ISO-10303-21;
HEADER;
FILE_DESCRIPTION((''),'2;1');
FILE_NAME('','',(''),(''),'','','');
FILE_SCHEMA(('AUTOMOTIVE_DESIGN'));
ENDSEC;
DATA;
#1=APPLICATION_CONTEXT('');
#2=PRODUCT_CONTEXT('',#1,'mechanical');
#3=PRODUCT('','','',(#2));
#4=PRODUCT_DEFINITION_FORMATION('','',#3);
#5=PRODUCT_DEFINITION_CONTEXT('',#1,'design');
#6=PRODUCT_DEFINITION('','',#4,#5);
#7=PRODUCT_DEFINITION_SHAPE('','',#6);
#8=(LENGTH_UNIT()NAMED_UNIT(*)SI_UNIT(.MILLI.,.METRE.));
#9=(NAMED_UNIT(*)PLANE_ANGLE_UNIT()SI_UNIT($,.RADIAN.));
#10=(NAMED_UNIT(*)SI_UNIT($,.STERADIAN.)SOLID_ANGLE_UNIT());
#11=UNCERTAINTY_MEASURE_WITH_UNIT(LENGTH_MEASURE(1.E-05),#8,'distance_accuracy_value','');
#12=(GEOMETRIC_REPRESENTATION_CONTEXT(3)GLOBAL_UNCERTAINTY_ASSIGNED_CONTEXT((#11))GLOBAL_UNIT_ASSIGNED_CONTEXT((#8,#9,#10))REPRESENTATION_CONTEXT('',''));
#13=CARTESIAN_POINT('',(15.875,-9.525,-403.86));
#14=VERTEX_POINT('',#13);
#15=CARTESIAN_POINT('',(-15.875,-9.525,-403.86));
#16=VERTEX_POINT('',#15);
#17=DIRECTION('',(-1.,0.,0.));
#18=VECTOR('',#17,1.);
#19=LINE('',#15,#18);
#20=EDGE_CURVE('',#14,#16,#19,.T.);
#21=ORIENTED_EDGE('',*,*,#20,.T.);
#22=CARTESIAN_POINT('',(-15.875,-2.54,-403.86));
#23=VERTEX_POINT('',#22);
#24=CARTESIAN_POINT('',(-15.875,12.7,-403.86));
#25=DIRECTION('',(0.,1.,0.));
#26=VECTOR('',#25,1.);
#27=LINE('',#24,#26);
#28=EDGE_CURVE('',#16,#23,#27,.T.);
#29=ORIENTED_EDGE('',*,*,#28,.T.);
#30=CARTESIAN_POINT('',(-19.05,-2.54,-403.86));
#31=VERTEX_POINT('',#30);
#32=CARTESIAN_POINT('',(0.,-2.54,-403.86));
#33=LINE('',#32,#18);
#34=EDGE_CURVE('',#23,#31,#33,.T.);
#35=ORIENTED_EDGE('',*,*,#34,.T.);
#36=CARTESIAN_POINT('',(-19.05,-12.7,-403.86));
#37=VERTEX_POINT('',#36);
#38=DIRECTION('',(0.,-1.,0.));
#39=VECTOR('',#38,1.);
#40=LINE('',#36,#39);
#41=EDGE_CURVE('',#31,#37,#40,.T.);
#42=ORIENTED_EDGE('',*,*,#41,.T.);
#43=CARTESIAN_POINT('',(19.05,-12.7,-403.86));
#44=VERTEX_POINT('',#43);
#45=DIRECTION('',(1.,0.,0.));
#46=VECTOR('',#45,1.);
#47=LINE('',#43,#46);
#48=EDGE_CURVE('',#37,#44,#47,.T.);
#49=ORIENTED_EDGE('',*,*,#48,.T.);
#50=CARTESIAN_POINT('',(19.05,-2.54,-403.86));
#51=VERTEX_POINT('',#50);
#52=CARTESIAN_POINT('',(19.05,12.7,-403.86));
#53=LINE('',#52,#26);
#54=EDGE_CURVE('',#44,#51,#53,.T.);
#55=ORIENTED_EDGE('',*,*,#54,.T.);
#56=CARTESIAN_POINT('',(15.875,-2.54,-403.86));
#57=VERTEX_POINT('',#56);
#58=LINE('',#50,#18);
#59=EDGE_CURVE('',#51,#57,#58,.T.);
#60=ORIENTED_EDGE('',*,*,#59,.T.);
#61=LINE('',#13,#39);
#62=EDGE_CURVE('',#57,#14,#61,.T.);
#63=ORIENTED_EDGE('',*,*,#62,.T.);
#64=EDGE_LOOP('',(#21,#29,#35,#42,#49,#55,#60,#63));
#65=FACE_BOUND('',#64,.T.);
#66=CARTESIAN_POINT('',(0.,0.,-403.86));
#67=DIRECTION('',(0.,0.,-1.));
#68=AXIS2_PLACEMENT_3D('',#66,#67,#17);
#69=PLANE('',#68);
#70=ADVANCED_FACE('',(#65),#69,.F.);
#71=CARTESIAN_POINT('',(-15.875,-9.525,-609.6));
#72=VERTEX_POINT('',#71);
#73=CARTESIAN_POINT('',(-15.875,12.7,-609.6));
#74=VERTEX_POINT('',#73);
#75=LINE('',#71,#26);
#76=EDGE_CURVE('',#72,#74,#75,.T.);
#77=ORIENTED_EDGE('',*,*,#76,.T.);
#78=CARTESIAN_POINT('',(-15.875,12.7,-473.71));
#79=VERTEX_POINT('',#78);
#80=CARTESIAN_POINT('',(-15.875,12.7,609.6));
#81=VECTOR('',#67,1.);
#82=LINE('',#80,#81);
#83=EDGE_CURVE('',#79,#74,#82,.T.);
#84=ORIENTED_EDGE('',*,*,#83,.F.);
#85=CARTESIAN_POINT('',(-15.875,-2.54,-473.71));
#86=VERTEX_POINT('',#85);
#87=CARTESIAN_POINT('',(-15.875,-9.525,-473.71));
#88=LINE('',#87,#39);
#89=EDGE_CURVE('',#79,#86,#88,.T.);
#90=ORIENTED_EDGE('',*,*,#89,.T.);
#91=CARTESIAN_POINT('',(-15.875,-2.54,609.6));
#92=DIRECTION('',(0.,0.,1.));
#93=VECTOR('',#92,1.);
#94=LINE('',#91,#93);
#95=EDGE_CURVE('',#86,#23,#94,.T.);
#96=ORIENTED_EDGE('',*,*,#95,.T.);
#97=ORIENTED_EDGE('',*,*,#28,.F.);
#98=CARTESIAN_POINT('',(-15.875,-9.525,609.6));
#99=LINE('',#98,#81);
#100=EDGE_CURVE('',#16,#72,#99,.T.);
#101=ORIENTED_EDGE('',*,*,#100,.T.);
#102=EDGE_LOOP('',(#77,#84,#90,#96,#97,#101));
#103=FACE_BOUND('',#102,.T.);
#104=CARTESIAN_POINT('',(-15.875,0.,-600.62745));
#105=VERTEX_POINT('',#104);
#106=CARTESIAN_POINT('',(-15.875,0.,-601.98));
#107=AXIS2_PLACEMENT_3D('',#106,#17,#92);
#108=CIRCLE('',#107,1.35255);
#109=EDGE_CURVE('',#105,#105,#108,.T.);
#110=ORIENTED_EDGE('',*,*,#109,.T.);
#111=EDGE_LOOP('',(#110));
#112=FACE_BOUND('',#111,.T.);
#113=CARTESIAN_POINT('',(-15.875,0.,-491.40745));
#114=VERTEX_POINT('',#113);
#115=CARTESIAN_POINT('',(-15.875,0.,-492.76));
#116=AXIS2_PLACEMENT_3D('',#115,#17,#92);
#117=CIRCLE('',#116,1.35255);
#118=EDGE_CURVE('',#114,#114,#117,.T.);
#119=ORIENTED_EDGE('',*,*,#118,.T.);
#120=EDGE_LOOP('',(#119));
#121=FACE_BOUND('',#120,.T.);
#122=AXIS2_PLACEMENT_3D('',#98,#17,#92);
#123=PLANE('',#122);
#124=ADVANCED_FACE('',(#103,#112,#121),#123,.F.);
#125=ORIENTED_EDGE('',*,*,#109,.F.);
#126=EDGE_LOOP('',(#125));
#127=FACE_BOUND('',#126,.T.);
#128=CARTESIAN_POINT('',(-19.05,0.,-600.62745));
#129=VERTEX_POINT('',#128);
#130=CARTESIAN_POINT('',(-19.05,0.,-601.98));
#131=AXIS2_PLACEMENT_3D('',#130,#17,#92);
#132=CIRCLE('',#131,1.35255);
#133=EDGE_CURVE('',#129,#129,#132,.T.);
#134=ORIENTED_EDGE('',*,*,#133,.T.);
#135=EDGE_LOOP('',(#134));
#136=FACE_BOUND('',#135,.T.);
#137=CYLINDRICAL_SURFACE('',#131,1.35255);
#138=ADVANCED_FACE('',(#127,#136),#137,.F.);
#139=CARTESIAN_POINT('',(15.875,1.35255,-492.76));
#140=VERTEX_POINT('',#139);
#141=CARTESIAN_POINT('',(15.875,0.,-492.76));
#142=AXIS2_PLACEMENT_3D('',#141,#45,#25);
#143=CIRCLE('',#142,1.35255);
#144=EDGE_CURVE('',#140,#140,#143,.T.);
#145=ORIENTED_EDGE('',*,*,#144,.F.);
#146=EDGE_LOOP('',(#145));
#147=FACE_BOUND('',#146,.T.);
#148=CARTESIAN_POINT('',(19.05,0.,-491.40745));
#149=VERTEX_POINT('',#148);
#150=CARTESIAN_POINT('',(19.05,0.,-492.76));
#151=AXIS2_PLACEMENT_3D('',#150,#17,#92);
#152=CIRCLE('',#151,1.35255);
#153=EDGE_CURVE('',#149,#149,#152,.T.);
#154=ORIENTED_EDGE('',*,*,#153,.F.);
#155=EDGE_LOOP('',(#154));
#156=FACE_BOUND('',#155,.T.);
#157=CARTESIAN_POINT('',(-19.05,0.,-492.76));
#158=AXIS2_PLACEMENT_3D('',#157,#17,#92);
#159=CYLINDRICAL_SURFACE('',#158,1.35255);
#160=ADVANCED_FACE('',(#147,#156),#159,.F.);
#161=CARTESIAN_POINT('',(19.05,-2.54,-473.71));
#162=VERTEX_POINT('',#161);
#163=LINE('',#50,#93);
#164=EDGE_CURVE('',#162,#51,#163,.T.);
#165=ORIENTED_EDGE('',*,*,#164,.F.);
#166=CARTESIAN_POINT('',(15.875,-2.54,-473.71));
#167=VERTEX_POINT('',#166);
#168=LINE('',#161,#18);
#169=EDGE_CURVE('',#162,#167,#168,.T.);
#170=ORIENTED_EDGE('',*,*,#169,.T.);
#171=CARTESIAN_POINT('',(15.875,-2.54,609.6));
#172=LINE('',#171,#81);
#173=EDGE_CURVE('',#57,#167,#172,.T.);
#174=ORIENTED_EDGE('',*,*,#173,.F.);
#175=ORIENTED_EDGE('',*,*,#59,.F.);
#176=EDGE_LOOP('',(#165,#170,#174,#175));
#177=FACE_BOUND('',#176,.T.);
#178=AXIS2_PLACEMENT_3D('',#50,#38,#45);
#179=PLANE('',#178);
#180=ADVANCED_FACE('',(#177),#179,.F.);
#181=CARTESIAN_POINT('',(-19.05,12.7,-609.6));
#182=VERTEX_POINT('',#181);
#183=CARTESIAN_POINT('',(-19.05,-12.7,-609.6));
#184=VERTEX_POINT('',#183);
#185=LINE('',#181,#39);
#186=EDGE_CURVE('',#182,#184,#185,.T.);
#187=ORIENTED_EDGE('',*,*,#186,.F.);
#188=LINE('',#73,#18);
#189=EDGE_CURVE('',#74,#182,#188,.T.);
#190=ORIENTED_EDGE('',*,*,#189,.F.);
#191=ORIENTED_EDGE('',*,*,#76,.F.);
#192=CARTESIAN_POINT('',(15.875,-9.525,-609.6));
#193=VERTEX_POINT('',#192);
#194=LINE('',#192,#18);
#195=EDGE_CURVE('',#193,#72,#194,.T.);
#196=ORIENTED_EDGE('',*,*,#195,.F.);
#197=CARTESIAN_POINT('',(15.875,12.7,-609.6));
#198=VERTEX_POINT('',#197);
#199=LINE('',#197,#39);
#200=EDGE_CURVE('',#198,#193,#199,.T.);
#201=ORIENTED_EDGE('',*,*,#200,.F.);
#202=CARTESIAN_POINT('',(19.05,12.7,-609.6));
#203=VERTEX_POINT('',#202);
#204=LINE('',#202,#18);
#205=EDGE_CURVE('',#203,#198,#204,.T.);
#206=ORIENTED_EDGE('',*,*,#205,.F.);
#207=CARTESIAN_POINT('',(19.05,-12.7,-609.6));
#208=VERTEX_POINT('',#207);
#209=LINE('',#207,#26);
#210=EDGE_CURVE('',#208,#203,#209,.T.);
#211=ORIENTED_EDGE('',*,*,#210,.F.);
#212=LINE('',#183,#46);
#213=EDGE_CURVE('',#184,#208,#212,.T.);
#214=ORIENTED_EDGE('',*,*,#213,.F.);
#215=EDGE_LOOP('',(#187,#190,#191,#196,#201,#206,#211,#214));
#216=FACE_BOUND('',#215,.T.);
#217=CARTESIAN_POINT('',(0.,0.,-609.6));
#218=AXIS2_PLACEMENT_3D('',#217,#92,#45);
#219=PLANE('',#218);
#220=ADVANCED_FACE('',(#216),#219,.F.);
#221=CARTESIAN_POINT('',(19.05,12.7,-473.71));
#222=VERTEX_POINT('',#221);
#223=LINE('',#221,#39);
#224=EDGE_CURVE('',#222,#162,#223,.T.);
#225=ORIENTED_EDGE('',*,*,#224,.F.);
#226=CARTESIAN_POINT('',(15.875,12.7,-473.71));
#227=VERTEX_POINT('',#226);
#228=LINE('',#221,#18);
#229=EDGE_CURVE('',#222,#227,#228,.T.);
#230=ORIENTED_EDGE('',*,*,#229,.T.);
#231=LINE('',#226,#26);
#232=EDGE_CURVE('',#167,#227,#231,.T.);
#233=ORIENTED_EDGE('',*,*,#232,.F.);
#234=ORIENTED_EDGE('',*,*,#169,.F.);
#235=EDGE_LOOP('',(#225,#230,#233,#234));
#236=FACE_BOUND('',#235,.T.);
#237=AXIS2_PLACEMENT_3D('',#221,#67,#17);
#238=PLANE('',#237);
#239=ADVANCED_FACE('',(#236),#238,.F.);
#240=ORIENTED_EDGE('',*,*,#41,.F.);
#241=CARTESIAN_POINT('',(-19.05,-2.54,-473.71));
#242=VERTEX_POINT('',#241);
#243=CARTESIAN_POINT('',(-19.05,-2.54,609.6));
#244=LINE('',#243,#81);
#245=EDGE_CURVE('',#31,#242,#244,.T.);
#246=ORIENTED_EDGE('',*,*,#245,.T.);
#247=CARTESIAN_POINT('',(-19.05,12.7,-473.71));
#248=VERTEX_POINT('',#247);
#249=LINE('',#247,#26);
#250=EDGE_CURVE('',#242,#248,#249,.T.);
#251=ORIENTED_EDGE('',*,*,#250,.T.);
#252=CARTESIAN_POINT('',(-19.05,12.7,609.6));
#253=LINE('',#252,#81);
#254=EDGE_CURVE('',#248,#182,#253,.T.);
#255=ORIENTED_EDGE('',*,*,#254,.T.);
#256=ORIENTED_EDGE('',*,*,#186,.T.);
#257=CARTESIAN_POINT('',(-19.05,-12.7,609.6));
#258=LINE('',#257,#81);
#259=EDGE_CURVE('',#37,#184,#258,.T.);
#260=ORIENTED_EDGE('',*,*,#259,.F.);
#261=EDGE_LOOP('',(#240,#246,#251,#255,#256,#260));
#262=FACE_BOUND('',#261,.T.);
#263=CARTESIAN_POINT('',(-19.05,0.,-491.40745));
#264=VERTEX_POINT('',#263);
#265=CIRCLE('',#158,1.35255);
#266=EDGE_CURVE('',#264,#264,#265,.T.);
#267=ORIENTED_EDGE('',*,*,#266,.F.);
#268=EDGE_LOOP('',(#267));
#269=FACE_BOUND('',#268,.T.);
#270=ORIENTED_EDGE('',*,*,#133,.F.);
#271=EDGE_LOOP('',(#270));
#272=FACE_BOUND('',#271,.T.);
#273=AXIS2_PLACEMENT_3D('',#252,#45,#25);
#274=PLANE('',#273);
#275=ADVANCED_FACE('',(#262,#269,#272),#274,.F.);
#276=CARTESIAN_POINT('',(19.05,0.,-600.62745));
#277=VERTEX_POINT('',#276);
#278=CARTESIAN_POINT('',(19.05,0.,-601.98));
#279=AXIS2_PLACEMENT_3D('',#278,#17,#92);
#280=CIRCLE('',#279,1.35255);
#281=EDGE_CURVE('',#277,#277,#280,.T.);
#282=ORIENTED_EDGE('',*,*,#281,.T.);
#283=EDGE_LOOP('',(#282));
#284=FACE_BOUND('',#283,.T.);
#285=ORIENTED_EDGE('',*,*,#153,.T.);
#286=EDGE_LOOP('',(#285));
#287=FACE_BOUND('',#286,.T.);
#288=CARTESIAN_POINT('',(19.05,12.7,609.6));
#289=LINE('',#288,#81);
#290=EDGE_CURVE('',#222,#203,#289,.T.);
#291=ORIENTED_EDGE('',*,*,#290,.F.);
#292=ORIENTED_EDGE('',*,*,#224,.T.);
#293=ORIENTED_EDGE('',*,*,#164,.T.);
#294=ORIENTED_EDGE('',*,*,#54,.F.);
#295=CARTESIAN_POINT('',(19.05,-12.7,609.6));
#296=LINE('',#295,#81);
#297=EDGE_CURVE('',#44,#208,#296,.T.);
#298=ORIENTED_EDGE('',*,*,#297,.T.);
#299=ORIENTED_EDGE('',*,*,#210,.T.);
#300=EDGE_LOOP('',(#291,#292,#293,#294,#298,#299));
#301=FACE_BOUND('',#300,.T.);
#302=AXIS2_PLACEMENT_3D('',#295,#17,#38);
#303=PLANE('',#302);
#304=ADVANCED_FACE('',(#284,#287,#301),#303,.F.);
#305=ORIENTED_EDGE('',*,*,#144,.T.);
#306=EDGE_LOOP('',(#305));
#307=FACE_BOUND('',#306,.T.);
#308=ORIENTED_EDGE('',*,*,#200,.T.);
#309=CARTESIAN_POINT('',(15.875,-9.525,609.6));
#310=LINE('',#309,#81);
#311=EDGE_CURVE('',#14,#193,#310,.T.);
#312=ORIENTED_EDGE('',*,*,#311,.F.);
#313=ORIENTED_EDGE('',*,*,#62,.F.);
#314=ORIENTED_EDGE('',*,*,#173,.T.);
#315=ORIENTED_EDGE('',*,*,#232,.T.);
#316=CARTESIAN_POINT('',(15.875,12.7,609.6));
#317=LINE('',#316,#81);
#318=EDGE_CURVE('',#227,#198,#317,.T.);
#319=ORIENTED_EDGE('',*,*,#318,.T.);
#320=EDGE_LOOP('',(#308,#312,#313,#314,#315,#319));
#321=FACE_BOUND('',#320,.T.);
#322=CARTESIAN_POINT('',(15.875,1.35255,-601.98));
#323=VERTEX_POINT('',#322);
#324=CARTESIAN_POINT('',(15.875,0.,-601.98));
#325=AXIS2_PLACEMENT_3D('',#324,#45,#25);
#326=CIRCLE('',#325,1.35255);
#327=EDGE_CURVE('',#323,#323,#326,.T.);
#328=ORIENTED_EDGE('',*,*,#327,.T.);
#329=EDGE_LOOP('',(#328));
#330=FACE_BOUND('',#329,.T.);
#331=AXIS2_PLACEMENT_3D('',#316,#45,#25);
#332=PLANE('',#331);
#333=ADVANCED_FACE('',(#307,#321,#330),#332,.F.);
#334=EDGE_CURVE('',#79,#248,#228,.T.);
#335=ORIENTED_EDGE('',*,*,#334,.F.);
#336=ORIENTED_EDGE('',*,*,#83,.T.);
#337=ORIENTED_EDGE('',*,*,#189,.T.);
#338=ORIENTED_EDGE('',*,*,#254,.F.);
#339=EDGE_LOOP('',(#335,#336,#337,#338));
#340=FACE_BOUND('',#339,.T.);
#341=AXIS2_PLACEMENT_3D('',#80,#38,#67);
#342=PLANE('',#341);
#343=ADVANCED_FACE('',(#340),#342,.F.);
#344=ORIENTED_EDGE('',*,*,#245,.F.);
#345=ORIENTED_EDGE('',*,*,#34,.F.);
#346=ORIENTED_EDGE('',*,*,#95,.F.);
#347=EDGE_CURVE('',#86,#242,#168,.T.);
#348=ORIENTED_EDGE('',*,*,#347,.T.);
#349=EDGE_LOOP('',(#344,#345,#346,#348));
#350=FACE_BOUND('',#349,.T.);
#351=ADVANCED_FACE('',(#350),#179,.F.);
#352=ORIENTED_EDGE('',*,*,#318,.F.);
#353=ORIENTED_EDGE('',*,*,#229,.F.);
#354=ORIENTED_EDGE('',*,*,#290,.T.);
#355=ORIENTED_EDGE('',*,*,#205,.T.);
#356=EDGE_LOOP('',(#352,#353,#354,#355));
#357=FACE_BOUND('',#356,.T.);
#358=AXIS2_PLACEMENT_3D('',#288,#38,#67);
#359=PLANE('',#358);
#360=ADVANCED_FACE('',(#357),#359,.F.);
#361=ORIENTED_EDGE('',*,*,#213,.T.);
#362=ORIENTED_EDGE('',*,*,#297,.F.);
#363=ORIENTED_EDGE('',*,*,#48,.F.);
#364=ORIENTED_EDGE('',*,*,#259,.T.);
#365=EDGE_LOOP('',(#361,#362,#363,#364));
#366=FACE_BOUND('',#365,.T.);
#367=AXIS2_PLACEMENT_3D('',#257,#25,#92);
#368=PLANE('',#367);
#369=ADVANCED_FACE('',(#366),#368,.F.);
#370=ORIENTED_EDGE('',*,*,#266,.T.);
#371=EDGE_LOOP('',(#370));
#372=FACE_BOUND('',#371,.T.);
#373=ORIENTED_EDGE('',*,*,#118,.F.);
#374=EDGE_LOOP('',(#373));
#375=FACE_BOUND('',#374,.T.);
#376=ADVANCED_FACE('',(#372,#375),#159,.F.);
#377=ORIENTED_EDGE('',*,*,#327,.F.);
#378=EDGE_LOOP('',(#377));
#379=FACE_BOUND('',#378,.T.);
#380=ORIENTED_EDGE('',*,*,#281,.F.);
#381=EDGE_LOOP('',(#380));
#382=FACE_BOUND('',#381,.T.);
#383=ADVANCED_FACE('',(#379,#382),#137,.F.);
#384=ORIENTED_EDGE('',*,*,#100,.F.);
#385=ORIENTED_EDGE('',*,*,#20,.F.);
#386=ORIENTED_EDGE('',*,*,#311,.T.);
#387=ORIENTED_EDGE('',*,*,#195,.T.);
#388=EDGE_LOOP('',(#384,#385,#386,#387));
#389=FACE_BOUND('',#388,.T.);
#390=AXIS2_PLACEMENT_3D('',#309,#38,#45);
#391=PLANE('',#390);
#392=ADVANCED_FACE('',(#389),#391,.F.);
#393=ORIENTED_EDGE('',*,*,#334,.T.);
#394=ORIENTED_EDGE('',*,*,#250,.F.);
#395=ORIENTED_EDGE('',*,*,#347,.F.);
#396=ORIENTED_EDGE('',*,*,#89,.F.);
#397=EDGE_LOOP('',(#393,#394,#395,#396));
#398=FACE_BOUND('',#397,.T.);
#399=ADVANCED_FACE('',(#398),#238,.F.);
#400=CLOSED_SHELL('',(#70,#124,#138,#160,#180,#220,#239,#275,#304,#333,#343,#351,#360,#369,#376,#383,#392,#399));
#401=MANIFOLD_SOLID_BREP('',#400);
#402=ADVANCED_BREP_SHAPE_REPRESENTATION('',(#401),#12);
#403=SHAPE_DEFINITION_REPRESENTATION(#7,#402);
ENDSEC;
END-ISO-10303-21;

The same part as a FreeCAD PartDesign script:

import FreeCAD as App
import Part
import Sketcher
from FreeCAD import Vector
Q = App.Units.Quantity

doc = App.newDocument("Part")
body = doc.addObject("PartDesign::Body", "Body")

# Sketch on XY plane
sketch1 = body.newObject("Sketcher::SketchObject", "Sketch")
sketch1.AttachmentSupport = (doc.getObject("XY_Plane"), [""])
sketch1.MapMode = "FlatFace"
sketch1.addGeometry([
    Part.LineSegment(Vector(-19.1, 12.7, 0), Vector(-19.1, -12.7, 0)),  # 0
    Part.LineSegment(Vector(-19.1, -12.7, 0), Vector(19.1, -12.7, 0)),  # 1
    Part.LineSegment(Vector(19.1, -12.7, 0), Vector(19.1, 12.7, 0)),  # 2
    Part.LineSegment(Vector(19.1, 12.7, 0), Vector(15.9, 12.7, 0)),  # 3
    Part.LineSegment(Vector(15.9, 12.7, 0), Vector(15.9, -9.5, 0)),  # 4
    Part.LineSegment(Vector(15.9, -9.5, 0), Vector(-15.9, -9.5, 0)),  # 5
    Part.LineSegment(Vector(-15.9, -9.5, 0), Vector(-15.9, 12.7, 0)),  # 6
    Part.LineSegment(Vector(-15.9, 12.7, 0), Vector(-19.1, 12.7, 0)),  # 7
], False)
sketch1.addConstraint([
    Sketcher.Constraint("Coincident", 0, 2, 1, 1),
    Sketcher.Constraint("Coincident", 1, 2, 2, 1),
    Sketcher.Constraint("Coincident", 2, 2, 3, 1),
    Sketcher.Constraint("Coincident", 3, 2, 4, 1),
    Sketcher.Constraint("Coincident", 4, 2, 5, 1),
    Sketcher.Constraint("Coincident", 5, 2, 6, 1),
    Sketcher.Constraint("Coincident", 6, 2, 7, 1),
    Sketcher.Constraint("Coincident", 7, 2, 0, 1),
    Sketcher.Constraint("Vertical", 0),
    Sketcher.Constraint("Horizontal", 1),
    Sketcher.Constraint("Vertical", 2),
    Sketcher.Constraint("Horizontal", 3),
    Sketcher.Constraint("Vertical", 4),
    Sketcher.Constraint("Horizontal", 5),
    Sketcher.Constraint("Vertical", 6),
    Sketcher.Constraint("Horizontal", 7),
    Sketcher.Constraint("Symmetric", 0, 2, 2, 2, -1, 1),
    Sketcher.Constraint("Symmetric", 3, 2, 6, 2, -2),
    Sketcher.Constraint("DistanceY", 0, 2, 0, 1, Q("1 in")),
    Sketcher.Constraint("DistanceX", 1, 1, 1, 2, Q("1.5 in")),
    Sketcher.Constraint("DistanceX", 5, 2, 5, 1, Q("1.25 in")),
    Sketcher.Constraint("DistanceY", 4, 2, 4, 1, Q("0.875 in")),
])
pad1 = body.newObject("PartDesign::Pad", "Pad")
pad1.Profile = sketch1
pad1.Length = Q("48 in")
pad1.Midplane = True

# Sketch on XY plane
sketch2 = body.newObject("Sketcher::SketchObject", "Sketch001")
sketch2.AttachmentSupport = (doc.getObject("XY_Plane"), [""])
sketch2.MapMode = "FlatFace"
sketch2.AttachmentOffset = App.Placement(Vector(0, 0, 24 * 25.4), App.Rotation())
sketch2.addGeometry([
    Part.LineSegment(Vector(-15.9, 12.7, 0), Vector(-19.1, 12.7, 0)),  # 0
    Part.LineSegment(Vector(-19.1, 12.7, 0), Vector(-19.1, -12.7, 0)),  # 1
    Part.LineSegment(Vector(-19.1, -12.7, 0), Vector(19.1, -12.7, 0)),  # 2
    Part.LineSegment(Vector(19.1, -12.7, 0), Vector(19.1, 12.7, 0)),  # 3
    Part.LineSegment(Vector(19.1, 12.7, 0), Vector(15.9, 12.7, 0)),  # 4
    Part.LineSegment(Vector(15.9, 12.7, 0), Vector(15.9, -9.5, 0)),  # 5
    Part.LineSegment(Vector(15.9, -9.5, 0), Vector(-15.9, -9.5, 0)),  # 6
    Part.LineSegment(Vector(-15.9, -9.5, 0), Vector(-15.9, 12.7, 0)),  # 7
], False)
sketch2.addConstraint([
    Sketcher.Constraint("Coincident", 0, 2, 1, 1),
    Sketcher.Constraint("Coincident", 1, 2, 2, 1),
    Sketcher.Constraint("Coincident", 2, 2, 3, 1),
    Sketcher.Constraint("Coincident", 3, 2, 4, 1),
    Sketcher.Constraint("Coincident", 4, 2, 5, 1),
    Sketcher.Constraint("Coincident", 5, 2, 6, 1),
    Sketcher.Constraint("Coincident", 6, 2, 7, 1),
    Sketcher.Constraint("Coincident", 7, 2, 0, 1),
    Sketcher.Constraint("Horizontal", 0),
    Sketcher.Constraint("Vertical", 1),
    Sketcher.Constraint("Horizontal", 2),
    Sketcher.Constraint("Vertical", 3),
    Sketcher.Constraint("Horizontal", 4),
    Sketcher.Constraint("Vertical", 5),
    Sketcher.Constraint("Horizontal", 6),
    Sketcher.Constraint("Vertical", 7),
    Sketcher.Constraint("Symmetric", 0, 2, 2, 2, -1, 1),
    Sketcher.Constraint("Symmetric", 4, 2, 7, 2, -2),
    Sketcher.Constraint("DistanceY", 1, 2, 1, 1, Q("1 in")),
    Sketcher.Constraint("DistanceX", 2, 1, 2, 2, Q("1.5 in")),
    Sketcher.Constraint("DistanceX", 6, 2, 6, 1, Q("1.25 in")),
    Sketcher.Constraint("DistanceY", 5, 2, 5, 1, Q("0.875 in")),
])
pocket1 = body.newObject("PartDesign::Pocket", "Pocket")
pocket1.Profile = sketch2
pocket1.Length = Q("39.9 in")

# Sketch on YZ plane
sketch3 = body.newObject("Sketcher::SketchObject", "Sketch002")
sketch3.AttachmentSupport = (doc.getObject("YZ_Plane"), [""])
sketch3.MapMode = "FlatFace"
sketch3.AttachmentOffset = App.Placement(Vector(0, 0, -0.75 * 25.4), App.Rotation())
sketch3.addGeometry(Part.Circle(Vector(0, -602, 0), Vector(0, 0, 1), 1.4), False)
sketch3.addConstraint([
    Sketcher.Constraint("PointOnObject", 0, 3, -2),
    Sketcher.Constraint("Diameter", 0, Q("0.1065 in")),
    Sketcher.Constraint("DistanceY", 0, 3, -1, 1, Q("23.7 in")),
])
doc.recompute()
hole = body.newObject("PartDesign::Hole", "Hole")
hole.Profile = sketch3
hole.ThreadType = "None"
hole.Diameter = Q("0.1065 in")
hole.DepthType = "ThroughAll"
hole.Reversed = True

# Sketch on YZ plane
sketch4 = body.newObject("Sketcher::SketchObject", "Sketch003")
sketch4.AttachmentSupport = (doc.getObject("YZ_Plane"), [""])
sketch4.MapMode = "FlatFace"
sketch4.AttachmentOffset = App.Placement(Vector(0, 0, -0.75 * 25.4), App.Rotation())
sketch4.addGeometry(Part.Circle(Vector(0, -492.8, 0), Vector(0, 0, 1), 1.4), False)
sketch4.addConstraint([
    Sketcher.Constraint("PointOnObject", 0, 3, -2),
    Sketcher.Constraint("Diameter", 0, Q("0.1065 in")),
    Sketcher.Constraint("DistanceY", 0, 3, -1, 1, Q("19.4 in")),
])
doc.recompute()
hole2 = body.newObject("PartDesign::Hole", "Hole001")
hole2.Profile = sketch4
hole2.ThreadType = "None"
hole2.Diameter = Q("0.1065 in")
hole2.DepthType = "ThroughAll"
hole2.Reversed = True

# Sketch on YZ plane
sketch5 = body.newObject("Sketcher::SketchObject", "Sketch004")
sketch5.AttachmentSupport = (doc.getObject("YZ_Plane"), [""])
sketch5.MapMode = "FlatFace"
sketch5.AttachmentOffset = App.Placement(Vector(0, 0, -0.75 * 25.4), App.Rotation())
sketch5.addGeometry([
    Part.LineSegment(Vector(13, -474, 0), Vector(-3, -474, 0)),
    Part.LineSegment(Vector(-3, -474, 0), Vector(-3, -404, 0)),
    Part.LineSegment(Vector(-3, -404, 0), Vector(13, -404, 0)),
    Part.LineSegment(Vector(13, -404, 0), Vector(13, -474, 0)),
], False)
sketch5.addConstraint([
    Sketcher.Constraint("Coincident", 0, 2, 1, 1),
    Sketcher.Constraint("Coincident", 1, 2, 2, 1),
    Sketcher.Constraint("Coincident", 2, 2, 3, 1),
    Sketcher.Constraint("Coincident", 3, 2, 0, 1),
    Sketcher.Constraint("Horizontal", 0),
    Sketcher.Constraint("Vertical", 1),
    Sketcher.Constraint("Horizontal", 2),
    Sketcher.Constraint("Vertical", 3),
    Sketcher.Constraint("DistanceX", 0, 2, 0, 1, Q("0.6 in")),
    Sketcher.Constraint("DistanceY", 1, 1, 1, 2, Q("2.75 in")),
    Sketcher.Constraint("DistanceX", 0, 2, -1, 1, Q("0.1 in")),
    Sketcher.Constraint("DistanceY", 1, 2, -1, 1, Q("15.9 in")),
])
pocket2 = body.newObject("PartDesign::Pocket", "Pocket001")
pocket2.Profile = sketch5
pocket2.Type = "ThroughAll"
pocket2.Midplane = True

doc.recompute()
